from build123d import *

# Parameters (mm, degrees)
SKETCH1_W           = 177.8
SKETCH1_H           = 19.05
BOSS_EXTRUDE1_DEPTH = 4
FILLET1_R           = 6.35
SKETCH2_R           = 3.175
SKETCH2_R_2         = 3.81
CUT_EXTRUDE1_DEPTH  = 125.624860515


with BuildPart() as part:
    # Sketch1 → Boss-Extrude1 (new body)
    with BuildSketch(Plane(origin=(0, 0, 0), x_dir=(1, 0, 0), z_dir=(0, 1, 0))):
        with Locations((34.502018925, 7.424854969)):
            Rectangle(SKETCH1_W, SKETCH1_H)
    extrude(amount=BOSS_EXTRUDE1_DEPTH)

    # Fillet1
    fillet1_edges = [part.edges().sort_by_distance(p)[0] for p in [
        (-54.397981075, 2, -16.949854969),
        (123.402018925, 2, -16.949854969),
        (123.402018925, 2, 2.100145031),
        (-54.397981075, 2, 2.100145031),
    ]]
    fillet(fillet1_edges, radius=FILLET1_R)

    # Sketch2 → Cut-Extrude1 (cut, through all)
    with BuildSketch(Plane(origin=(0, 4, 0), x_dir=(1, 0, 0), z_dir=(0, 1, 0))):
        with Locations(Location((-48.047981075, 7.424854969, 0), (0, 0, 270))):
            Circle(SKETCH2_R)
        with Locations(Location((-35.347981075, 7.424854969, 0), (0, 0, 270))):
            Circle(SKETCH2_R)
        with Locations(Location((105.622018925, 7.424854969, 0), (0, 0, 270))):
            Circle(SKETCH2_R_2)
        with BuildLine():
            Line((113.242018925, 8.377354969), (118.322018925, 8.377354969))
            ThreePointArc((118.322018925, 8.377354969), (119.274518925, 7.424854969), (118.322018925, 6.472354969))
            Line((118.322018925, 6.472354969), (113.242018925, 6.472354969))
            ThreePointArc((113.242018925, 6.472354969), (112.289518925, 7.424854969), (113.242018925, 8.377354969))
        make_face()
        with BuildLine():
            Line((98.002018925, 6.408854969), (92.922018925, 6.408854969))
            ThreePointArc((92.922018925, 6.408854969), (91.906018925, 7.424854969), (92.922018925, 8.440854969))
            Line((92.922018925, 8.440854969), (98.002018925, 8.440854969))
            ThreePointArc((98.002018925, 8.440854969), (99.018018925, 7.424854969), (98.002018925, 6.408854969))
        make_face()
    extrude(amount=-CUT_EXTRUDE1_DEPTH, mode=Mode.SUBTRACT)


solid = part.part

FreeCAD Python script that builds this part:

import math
import FreeCAD as App
import Part
import Sketcher
from FreeCAD import Vector
Q = App.Units.Quantity


def edges_at(feature, points):
    """Names of the edges that pass closest to the given points."""
    edges = feature.Shape.Edges
    near = lambda p: min(range(len(edges)), key=lambda i: edges[i].distToShape(Part.Vertex(*p))[0])
    return sorted({f"Edge{near(p) + 1}" for p in points})


def add_polygon(sketch, points):
    """Adds a closed chain of lines whose ends are joined by coincident constraints."""
    first, n = sketch.GeometryCount, len(points)
    for a, b in zip(points, points[1:] + points[:1]):
        sketch.addGeometry(Part.LineSegment(App.Vector(*a, 0), App.Vector(*b, 0)), False)
    for i in range(n):
        sketch.addConstraint(Sketcher.Constraint("Coincident", first + i, 2, first + (i + 1) % n, 1))

doc = App.newDocument("Part")
body = doc.addObject("PartDesign::Body", "Body")

# Sketch on XZ plane
sketch1 = doc.addObject("Sketcher::SketchObject", "Sketch")
body.addObject(sketch1)
sketch1.AttachmentSupport = (doc.XZ_Plane, [""])
sketch1.MapMode = "FlatFace"
add_polygon(sketch1, [(-54, -17), (-54, 2), (123, 2), (123, -17)])  # lines 0-3
sketch1.addConstraint(Sketcher.Constraint("Vertical", 0))
sketch1.addConstraint(Sketcher.Constraint("Horizontal", 1))
sketch1.addConstraint(Sketcher.Constraint("Vertical", 2))
sketch1.addConstraint(Sketcher.Constraint("Horizontal", 3))
sketch1.addConstraint(Sketcher.Constraint("DistanceX", 1, 1, 1, 2, Q("7 in")))
sketch1.addConstraint(Sketcher.Constraint("DistanceY", 0, 1, 0, 2, Q("0.75 in")))
sketch1.addConstraint(Sketcher.Constraint("DistanceX", 0, 2, -1, 1, Q("54.397981 mm")))
sketch1.addConstraint(Sketcher.Constraint("DistanceY", -1, 1, 0, 2, Q("2.100145 mm")))
pad1 = doc.addObject("PartDesign::Pad", "Pad")
body.addObject(pad1)
pad1.Profile = sketch1
pad1.Length = 4
pad1.Reversed = True
doc.recompute()

fillet = doc.addObject("PartDesign::Fillet", "Fillet")
body.addObject(fillet)
fillet.Base = (pad1, edges_at(pad1, [
    (-54.398, 2, -16.95),
    (123.402, 2, -16.95),
    (123.402, 2, 2.1),
    (-54.398, 2, 2.1),
]))
fillet.Radius = Q("0.25 in")

# Sketch on XZ plane
sketch2 = doc.addObject("Sketcher::SketchObject", "Sketch001")
body.addObject(sketch2)
sketch2.AttachmentSupport = (doc.XZ_Plane, [""])
sketch2.MapMode = "FlatFace"
sketch2.AttachmentOffset = App.Placement(Vector(0, 0, -4), App.Rotation())
sketch2.addGeometry(Part.Circle(Vector(-48, -7.4, 0), Vector(0, 0, 1), 3.2), False)
sketch2.addGeometry(Part.Circle(Vector(-35.3, -7.4, 0), Vector(0, 0, 1), 3.2), False)
sketch2.addGeometry(Part.Circle(Vector(105.6, -7.4, 0), Vector(0, 0, 1), 3.8), False)
sketch2.addGeometry(Part.LineSegment(Vector(118.3, -8.4, 0), Vector(113.2, -8.4, 0)), False)
sketch2.addGeometry(Part.ArcOfCircle(Part.Circle(Vector(113.2, -7.4, 0), Vector(0, 0, 1), 1), math.radians(90), math.radians(270)), False)
sketch2.addGeometry(Part.LineSegment(Vector(113.2, -6.5, 0), Vector(118.3, -6.5, 0)), False)
sketch2.addGeometry(Part.ArcOfCircle(Part.Circle(Vector(118.3, -7.4, 0), Vector(0, 0, 1), 1), math.radians(-90), math.radians(90)), False)
sketch2.addGeometry(Part.LineSegment(Vector(92.9, -6.4, 0), Vector(98, -6.4, 0)), False)
sketch2.addGeometry(Part.ArcOfCircle(Part.Circle(Vector(98, -7.4, 0), Vector(0, 0, 1), 1), math.radians(-90), math.radians(90)), False)
sketch2.addGeometry(Part.LineSegment(Vector(98, -8.4, 0), Vector(92.9, -8.4, 0)), False)
sketch2.addGeometry(Part.ArcOfCircle(Part.Circle(Vector(92.9, -7.4, 0), Vector(0, 0, 1), 1), math.radians(90), math.radians(270)), False)
sketch2.addConstraint(Sketcher.Constraint("Tangent", 3, 2, 4, 2))
sketch2.addConstraint(Sketcher.Constraint("Tangent", 4, 1, 5, 1))
sketch2.addConstraint(Sketcher.Constraint("Tangent", 5, 2, 6, 2))
sketch2.addConstraint(Sketcher.Constraint("Tangent", 6, 1, 3, 1))
sketch2.addConstraint(Sketcher.Constraint("Tangent", 7, 2, 8, 2))
sketch2.addConstraint(Sketcher.Constraint("Tangent", 8, 1, 9, 1))
sketch2.addConstraint(Sketcher.Constraint("Tangent", 9, 2, 10, 2))
sketch2.addConstraint(Sketcher.Constraint("Tangent", 10, 1, 7, 1))
sketch2.addConstraint(Sketcher.Constraint("Horizontal", 3))
sketch2.addConstraint(Sketcher.Constraint("Horizontal", 5))
sketch2.addConstraint(Sketcher.Constraint("Horizontal", 7))
sketch2.addConstraint(Sketcher.Constraint("Horizontal", 9))
sketch2.addConstraint(Sketcher.Constraint("Equal", 0, 1))
sketch2.addConstraint(Sketcher.Constraint("Horizontal", 0, 3, 1, 3))
sketch2.addConstraint(Sketcher.Constraint("Horizontal", 1, 3, 2, 3))
sketch2.addConstraint(Sketcher.Constraint("Horizontal", 2, 3, 4, 3))
sketch2.addConstraint(Sketcher.Constraint("Horizontal", 6, 3, 8, 3))
sketch2.addConstraint(Sketcher.Constraint("Equal", 5, 7))
sketch2.addConstraint(Sketcher.Constraint("Diameter", 2, Q("0.3 in")))
sketch2.addConstraint(Sketcher.Constraint("Diameter", 0, Q("0.25 in")))
sketch2.addConstraint(Sketcher.Constraint("Radius", 8, Q("0.04 in")))
sketch2.addConstraint(Sketcher.Constraint("DistanceX", 3, 2, 3, 1, Q("0.2 in")))
sketch2.addConstraint(Sketcher.Constraint("DistanceX", 10, 3, 6, 3, Q("1 in")))
sketch2.addConstraint(Sketcher.Constraint("Radius", 4, Q("0.0375 in")))
sketch2.addConstraint(Sketcher.Constraint("DistanceX", 0, 3, 1, 3, Q("0.5 in")))
sketch2.addConstraint(Sketcher.Constraint("DistanceX", 2, 3, 4, 3, Q("0.3 in")))
sketch2.addConstraint(Sketcher.Constraint("DistanceX", 1, 3, 2, 3, Q("5.55 in")))
sketch2.addConstraint(Sketcher.Constraint("DistanceX", 0, 3, -1, 1, Q("48.047981 mm")))
sketch2.addConstraint(Sketcher.Constraint("DistanceY", 0, 3, -1, 1, Q("7.424855 mm")))
pocket1 = doc.addObject("PartDesign::Pocket", "Pocket")
body.addObject(pocket1)
pocket1.Profile = sketch2
pocket1.Type = "ThroughAll"
pocket1.Reversed = True

doc.recompute()
